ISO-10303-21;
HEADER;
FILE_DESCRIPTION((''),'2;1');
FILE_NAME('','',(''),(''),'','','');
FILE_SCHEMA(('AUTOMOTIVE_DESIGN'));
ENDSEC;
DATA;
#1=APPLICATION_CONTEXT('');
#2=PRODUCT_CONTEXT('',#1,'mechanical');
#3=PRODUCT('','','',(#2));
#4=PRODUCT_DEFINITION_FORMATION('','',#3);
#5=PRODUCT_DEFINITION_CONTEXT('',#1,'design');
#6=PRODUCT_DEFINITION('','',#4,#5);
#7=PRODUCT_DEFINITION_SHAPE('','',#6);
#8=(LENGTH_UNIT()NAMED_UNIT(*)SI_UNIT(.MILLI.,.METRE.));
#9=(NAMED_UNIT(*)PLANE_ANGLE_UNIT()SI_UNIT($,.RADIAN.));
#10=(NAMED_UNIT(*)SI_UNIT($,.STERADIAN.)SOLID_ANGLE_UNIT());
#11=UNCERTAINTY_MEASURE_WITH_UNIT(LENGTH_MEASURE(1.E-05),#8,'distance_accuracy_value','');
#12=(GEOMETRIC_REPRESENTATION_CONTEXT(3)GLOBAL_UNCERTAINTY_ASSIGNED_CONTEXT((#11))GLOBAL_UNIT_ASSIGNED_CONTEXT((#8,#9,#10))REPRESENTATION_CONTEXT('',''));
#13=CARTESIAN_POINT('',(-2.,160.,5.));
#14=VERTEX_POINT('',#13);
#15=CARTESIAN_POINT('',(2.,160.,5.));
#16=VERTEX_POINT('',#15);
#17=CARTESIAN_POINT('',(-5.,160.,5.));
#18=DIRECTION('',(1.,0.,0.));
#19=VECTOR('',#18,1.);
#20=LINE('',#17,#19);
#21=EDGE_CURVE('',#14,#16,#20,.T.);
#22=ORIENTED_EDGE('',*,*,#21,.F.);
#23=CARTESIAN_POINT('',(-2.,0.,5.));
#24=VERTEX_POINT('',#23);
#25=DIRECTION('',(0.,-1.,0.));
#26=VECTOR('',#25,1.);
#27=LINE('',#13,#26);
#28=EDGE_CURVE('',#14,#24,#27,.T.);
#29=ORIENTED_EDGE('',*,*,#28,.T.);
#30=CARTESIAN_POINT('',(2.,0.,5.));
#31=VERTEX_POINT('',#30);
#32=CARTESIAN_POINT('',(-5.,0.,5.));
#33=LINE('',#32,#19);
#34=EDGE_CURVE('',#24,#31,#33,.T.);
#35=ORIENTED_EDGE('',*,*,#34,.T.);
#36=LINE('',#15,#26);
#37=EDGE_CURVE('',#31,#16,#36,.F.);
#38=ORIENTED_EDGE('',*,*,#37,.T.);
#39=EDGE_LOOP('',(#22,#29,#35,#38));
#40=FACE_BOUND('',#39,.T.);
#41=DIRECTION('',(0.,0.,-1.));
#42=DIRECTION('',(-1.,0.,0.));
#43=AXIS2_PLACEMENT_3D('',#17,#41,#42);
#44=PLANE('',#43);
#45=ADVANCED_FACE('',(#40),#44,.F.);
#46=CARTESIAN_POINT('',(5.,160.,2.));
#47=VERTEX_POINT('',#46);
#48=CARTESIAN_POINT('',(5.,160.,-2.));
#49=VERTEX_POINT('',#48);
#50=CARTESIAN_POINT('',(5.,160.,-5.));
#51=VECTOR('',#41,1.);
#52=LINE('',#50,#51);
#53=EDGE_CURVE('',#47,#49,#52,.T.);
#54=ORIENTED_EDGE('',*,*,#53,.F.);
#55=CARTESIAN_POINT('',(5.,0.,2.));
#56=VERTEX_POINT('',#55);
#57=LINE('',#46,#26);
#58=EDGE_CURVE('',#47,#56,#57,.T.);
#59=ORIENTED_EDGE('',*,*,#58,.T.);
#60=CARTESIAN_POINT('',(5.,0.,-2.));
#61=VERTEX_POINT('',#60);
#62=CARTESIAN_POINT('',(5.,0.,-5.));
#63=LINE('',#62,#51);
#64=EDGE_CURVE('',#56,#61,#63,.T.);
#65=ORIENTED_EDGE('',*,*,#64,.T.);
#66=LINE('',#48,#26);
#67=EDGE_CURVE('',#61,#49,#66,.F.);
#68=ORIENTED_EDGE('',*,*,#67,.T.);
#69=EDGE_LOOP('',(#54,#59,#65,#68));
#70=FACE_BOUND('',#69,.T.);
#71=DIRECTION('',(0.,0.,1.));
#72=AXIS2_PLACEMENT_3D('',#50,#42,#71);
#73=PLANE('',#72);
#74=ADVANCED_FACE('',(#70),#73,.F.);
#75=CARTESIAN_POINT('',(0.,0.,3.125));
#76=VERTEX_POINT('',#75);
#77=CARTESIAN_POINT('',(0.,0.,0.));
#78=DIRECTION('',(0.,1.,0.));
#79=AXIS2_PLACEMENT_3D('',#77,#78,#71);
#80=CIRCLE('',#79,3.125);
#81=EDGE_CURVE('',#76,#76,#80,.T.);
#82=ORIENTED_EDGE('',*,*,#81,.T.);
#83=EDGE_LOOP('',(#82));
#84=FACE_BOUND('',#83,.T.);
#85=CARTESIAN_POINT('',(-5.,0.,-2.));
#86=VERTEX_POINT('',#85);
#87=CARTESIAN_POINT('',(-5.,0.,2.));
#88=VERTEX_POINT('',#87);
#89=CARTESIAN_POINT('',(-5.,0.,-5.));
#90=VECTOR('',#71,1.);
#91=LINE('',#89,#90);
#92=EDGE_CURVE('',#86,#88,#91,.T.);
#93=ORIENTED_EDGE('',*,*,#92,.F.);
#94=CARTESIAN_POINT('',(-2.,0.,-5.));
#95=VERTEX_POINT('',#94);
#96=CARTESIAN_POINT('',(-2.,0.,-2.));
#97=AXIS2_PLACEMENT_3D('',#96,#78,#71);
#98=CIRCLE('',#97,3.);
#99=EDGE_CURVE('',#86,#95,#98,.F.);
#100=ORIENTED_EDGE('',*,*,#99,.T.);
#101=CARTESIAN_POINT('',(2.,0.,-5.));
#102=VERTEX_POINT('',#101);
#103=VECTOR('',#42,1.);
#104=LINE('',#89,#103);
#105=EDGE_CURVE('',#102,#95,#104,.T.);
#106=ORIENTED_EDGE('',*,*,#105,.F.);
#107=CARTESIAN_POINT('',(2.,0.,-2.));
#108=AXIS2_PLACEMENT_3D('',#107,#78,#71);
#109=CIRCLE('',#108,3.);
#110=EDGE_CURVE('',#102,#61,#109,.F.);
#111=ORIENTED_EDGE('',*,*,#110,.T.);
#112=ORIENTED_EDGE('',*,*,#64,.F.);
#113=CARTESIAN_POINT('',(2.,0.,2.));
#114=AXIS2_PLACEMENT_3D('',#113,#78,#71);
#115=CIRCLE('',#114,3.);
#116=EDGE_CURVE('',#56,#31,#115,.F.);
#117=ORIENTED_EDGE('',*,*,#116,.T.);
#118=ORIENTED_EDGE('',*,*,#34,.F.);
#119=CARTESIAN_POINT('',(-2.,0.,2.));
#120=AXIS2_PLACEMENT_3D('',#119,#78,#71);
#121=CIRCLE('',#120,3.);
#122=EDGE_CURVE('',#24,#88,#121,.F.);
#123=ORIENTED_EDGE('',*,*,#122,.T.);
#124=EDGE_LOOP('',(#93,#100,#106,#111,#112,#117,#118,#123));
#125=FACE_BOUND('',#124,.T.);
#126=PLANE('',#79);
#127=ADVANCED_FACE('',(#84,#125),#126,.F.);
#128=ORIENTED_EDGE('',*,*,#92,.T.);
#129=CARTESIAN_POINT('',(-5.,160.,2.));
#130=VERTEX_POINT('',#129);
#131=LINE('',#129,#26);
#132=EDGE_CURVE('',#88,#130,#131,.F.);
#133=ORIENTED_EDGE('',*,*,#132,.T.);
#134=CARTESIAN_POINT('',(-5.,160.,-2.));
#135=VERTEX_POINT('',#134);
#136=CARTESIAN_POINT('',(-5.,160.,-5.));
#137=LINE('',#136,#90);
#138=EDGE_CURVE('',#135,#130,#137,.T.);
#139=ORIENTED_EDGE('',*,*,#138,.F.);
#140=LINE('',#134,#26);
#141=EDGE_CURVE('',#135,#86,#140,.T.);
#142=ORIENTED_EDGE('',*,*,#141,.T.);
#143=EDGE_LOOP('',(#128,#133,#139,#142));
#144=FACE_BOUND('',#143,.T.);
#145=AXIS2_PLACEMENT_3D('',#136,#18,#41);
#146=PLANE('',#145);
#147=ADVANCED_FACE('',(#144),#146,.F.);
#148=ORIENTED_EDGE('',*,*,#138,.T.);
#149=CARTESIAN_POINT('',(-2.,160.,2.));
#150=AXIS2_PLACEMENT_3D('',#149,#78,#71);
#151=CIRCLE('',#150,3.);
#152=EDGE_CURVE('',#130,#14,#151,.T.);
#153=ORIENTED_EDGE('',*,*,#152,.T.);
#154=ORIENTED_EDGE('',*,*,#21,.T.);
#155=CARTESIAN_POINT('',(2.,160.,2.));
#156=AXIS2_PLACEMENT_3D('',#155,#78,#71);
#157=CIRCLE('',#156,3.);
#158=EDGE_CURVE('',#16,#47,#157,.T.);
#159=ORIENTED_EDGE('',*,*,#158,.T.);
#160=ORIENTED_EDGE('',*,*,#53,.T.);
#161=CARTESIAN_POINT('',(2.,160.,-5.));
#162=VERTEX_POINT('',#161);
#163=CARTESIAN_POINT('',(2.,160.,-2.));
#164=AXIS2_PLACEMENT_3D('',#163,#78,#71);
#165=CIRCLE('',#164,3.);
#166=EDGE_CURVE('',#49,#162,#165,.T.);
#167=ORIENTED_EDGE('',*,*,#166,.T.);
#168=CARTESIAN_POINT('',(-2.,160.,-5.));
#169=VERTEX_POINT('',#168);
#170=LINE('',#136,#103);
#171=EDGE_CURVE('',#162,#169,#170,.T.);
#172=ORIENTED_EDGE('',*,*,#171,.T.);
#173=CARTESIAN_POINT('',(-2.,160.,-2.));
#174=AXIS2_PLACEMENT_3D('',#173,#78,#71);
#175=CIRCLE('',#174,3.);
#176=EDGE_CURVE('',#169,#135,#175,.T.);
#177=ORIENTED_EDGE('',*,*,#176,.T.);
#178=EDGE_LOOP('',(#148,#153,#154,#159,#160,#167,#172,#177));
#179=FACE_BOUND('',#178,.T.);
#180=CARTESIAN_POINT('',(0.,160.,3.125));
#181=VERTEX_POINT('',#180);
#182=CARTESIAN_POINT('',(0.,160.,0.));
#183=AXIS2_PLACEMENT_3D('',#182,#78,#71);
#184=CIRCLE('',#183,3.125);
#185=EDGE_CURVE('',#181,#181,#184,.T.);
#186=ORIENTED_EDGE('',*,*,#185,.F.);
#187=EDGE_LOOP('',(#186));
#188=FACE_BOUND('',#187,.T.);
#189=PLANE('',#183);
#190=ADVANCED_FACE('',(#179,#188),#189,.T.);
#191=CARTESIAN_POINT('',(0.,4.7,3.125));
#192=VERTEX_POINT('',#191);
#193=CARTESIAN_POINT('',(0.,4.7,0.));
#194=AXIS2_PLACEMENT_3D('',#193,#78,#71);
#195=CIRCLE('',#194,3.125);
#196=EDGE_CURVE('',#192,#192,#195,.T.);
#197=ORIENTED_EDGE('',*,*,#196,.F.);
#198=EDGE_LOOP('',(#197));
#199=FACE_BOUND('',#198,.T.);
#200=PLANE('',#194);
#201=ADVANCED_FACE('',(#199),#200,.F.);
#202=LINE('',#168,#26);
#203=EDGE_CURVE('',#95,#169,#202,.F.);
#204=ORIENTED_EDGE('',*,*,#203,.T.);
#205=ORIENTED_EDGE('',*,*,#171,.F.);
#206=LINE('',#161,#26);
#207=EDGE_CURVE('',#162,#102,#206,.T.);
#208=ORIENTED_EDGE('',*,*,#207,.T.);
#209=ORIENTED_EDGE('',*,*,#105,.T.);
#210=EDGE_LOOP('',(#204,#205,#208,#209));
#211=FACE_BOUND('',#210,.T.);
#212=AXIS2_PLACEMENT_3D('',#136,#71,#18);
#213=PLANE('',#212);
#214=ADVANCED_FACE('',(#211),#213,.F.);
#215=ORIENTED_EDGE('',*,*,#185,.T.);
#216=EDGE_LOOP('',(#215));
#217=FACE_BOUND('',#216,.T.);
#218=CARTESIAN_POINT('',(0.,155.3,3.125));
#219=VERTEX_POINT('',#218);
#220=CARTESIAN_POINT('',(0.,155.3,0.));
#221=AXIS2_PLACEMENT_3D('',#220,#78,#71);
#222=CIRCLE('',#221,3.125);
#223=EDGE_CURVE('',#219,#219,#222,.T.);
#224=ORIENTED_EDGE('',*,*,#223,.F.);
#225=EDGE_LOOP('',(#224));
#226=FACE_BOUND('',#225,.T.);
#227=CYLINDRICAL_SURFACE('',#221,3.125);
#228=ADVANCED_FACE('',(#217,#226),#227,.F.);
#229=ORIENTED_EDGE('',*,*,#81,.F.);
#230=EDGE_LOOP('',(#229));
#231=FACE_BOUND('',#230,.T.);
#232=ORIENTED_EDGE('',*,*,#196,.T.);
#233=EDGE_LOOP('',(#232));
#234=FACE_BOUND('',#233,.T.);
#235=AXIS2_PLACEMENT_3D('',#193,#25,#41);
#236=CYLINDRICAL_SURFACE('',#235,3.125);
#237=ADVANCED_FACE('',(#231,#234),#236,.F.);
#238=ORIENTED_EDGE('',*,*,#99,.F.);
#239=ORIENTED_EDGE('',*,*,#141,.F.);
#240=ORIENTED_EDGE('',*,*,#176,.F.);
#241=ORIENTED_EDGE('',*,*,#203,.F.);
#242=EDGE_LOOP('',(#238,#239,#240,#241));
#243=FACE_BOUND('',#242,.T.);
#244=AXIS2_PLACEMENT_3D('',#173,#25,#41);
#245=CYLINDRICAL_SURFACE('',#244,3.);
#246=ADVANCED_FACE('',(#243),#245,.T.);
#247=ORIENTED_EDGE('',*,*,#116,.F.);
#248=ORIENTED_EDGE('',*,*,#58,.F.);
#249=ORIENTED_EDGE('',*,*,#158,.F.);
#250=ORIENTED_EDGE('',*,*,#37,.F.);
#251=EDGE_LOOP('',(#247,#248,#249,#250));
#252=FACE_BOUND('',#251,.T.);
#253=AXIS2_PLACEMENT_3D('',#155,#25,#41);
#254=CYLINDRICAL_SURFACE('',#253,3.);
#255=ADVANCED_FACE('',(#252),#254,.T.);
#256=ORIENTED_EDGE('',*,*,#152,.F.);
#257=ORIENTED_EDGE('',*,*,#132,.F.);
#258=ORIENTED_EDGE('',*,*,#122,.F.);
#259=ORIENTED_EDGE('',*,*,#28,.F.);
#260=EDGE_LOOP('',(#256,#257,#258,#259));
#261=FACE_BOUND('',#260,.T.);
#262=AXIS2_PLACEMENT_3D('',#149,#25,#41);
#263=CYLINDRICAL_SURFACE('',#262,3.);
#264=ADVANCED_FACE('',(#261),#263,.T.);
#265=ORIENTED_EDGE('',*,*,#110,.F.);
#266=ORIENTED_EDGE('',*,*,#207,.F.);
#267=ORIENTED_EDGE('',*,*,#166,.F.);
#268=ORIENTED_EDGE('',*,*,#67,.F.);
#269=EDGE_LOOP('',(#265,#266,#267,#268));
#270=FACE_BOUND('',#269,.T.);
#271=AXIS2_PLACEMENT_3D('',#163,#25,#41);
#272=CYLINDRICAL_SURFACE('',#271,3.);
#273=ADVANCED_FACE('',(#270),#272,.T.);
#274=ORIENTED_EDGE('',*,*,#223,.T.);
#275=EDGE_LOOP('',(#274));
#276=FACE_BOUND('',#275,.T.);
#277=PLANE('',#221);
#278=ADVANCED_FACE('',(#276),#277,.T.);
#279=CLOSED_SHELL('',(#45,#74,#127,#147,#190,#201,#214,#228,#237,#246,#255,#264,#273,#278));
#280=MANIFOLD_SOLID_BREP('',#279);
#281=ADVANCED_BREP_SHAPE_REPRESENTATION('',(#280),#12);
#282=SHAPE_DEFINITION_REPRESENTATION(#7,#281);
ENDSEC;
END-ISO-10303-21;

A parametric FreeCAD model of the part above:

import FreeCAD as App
import Part
import Sketcher
from FreeCAD import Vector
Q = App.Units.Quantity


def edges_at(feature, points):
    """Names of the edges that pass closest to the given points."""
    edges = feature.Shape.Edges
    near = lambda p: min(range(len(edges)), key=lambda i: edges[i].distToShape(Part.Vertex(*p))[0])
    return sorted({f"Edge{near(p) + 1}" for p in points})


def add_polygon(sketch, points):
    """Adds a closed chain of lines whose ends are joined by coincident constraints."""
    first, n = sketch.GeometryCount, len(points)
    for a, b in zip(points, points[1:] + points[:1]):
        sketch.addGeometry(Part.LineSegment(App.Vector(*a, 0), App.Vector(*b, 0)), False)
    for i in range(n):
        sketch.addConstraint(Sketcher.Constraint("Coincident", first + i, 2, first + (i + 1) % n, 1))

doc = App.newDocument("Part")
body = doc.addObject("PartDesign::Body", "Body")

sketch1 = body.newObject("Sketcher::SketchObject", "Sketch")
sketch1.AttachmentSupport = (doc.getObject("XZ_Plane"), [""])
sketch1.MapMode = "FlatFace"
add_polygon(sketch1, [(-5, -5), (-5, 5), (5, 5), (5, -5)])
sketch1.addConstraint([
    Sketcher.Constraint("Vertical", 0),
    Sketcher.Constraint("Horizontal", 1),
    Sketcher.Constraint("Vertical", 2),
    Sketcher.Constraint("Horizontal", 3),
    Sketcher.Constraint("Symmetric", 0, 2, 2, 2, -1, 1),
    Sketcher.Constraint("Equal", 3, 0),
    Sketcher.Constraint("DistanceX", 1, 1, 1, 2, Q("10 mm")),
])
pad1 = body.newObject("PartDesign::Pad", "Pad")
pad1.Profile = sketch1
pad1.Length = 160
pad1.Reversed = True
doc.recompute()

fillet = body.newObject("PartDesign::Fillet", "Fillet")
fillet.Base = (pad1, edges_at(pad1, [
    (-5, 80, -5),
    (5, 80, -5),
    (5, 80, 5),
    (-5, 80, 5),
]))
fillet.Radius = 3

sketch2 = body.newObject("Sketcher::SketchObject", "Sketch001")
sketch2.AttachmentSupport = (doc.getObject("XZ_Plane"), [""])
sketch2.MapMode = "FlatFace"
sketch2.AttachmentOffset = App.Placement(Vector(0, 0, -160), App.Rotation())
sketch2.addGeometry(Part.Circle(Vector(0, 0, 0), Vector(0, 0, 1), 3.1), False)
sketch2.addConstraint([
    Sketcher.Constraint("Coincident", 0, 3, -1, 1),
    Sketcher.Constraint("Diameter", 0, Q("6.25 mm")),
])
pocket1 = body.newObject("PartDesign::Pocket", "Pocket")
pocket1.Profile = sketch2
pocket1.Length = 4.7
pocket1.Reversed = True

sketch3 = body.newObject("Sketcher::SketchObject", "Sketch002")
sketch3.AttachmentSupport = (doc.getObject("XZ_Plane"), [""])
sketch3.MapMode = "FlatFace"
sketch3.addGeometry(Part.Circle(Vector(0, 0, 0), Vector(0, 0, 1), 3.1), False)
sketch3.addConstraint([
    Sketcher.Constraint("Coincident", 0, 3, -1, 1),
    Sketcher.Constraint("Diameter", 0, Q("6.25 mm")),
])
pocket2 = body.newObject("PartDesign::Pocket", "Pocket001")
pocket2.Profile = sketch3
pocket2.Length = 4.7

doc.recompute()
